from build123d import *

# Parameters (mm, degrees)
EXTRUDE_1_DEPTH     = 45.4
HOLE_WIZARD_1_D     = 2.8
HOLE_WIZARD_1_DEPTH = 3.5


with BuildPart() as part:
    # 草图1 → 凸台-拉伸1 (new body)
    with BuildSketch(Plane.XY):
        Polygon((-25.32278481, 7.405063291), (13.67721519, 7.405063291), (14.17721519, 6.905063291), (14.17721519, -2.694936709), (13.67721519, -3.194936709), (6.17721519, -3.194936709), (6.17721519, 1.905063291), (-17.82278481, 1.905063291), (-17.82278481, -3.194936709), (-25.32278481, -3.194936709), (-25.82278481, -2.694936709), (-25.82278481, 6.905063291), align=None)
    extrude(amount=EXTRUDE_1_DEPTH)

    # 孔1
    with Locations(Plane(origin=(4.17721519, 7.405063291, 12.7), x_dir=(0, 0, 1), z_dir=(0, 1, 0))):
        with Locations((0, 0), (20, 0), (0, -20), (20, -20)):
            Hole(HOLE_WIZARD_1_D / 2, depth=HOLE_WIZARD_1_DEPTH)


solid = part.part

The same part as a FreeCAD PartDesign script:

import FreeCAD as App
import Part
import Sketcher

V = App.Vector
Q = App.Units.Quantity


def add_polygon(sketch, points):
    """Adds a closed chain of lines whose ends are joined by coincident constraints."""
    first, n = sketch.GeometryCount, len(points)
    for a, b in zip(points, points[1:] + points[:1]):
        sketch.addGeometry(Part.LineSegment(App.Vector(*a, 0), App.Vector(*b, 0)), False)
    for i in range(n):
        sketch.addConstraint(Sketcher.Constraint("Coincident", first + i, 2, first + (i + 1) % n, 1))

doc = App.newDocument("Part")
body = doc.addObject("PartDesign::Body", "Body")

sketch1 = doc.addObject("Sketcher::SketchObject", "Sketch")
body.addObject(sketch1)
sketch1.AttachmentSupport = (doc.XY_Plane, [""])
sketch1.MapMode = "FlatFace"
add_polygon(sketch1, [(13.677215, 7.405063), (-25.322785, 7.405063), (-25.822785, 6.905063), (-25.822785, -2.694937), (-25.322785, -3.194937), (-17.822785, -3.194937), (-17.822785, 1.905063), (6.177215, 1.905063), (6.177215, -3.194937), (13.677215, -3.194937), (14.177215, -2.694937), (14.177215, 6.905063)])
sketch1.addConstraint([
    Sketcher.Constraint("Horizontal", 0),
    Sketcher.Constraint("Vertical", 2),
    Sketcher.Constraint("Horizontal", 4),
    Sketcher.Constraint("Vertical", 5),
    Sketcher.Constraint("Horizontal", 6),
    Sketcher.Constraint("Vertical", 7),
    Sketcher.Constraint("Horizontal", 8),
    Sketcher.Constraint("Vertical", 10),
    Sketcher.Constraint("Perpendicular", 1, 3),
    Sketcher.Constraint("Perpendicular", 3, 9),
    Sketcher.Constraint("Perpendicular", 9, 11),
    Sketcher.Constraint("Horizontal", 4, 2, 7, 2),
    Sketcher.Constraint("Horizontal", 2, 2, 9, 2),
    Sketcher.Constraint("Horizontal", 1, 2, 10, 2),
    Sketcher.Constraint("Vertical", 0, 2, 3, 2),
    Sketcher.Constraint("Vertical", 8, 2, 11, 2),
    Sketcher.Constraint("Equal", 4, 8),
    Sketcher.Constraint("DistanceX", 0, 2, 0, 1, Q("39 mm")),
    Sketcher.Constraint("DistanceX", 6, 1, 6, 2, Q("24 mm")),
    Sketcher.Constraint("DistanceY", 2, 2, 2, 1, Q("9.6 mm")),
    Sketcher.Constraint("DistanceY", 5, 1, 5, 2, Q("5.1 mm")),
    Sketcher.Constraint("DistanceX", 2, 2, 4, 2, Q("8 mm")),
    Sketcher.Constraint("DistanceX", 0, 2, -1, 1, Q("25.322785 mm")),
    Sketcher.Constraint("DistanceY", -1, 1, 0, 2, Q("7.405063 mm")),
])
pad1 = doc.addObject("PartDesign::Pad", "Pad")
body.addObject(pad1)
pad1.Profile = sketch1
pad1.Length = 45.4

sketch2 = doc.addObject("Sketcher::SketchObject", "Sketch001")
body.addObject(sketch2)
sketch2.AttachmentSupport = (doc.XZ_Plane, [""])
sketch2.MapMode = "FlatFace"
sketch2.AttachmentOffset = App.Placement(V(0, 0, -7.405063), App.Rotation())
sketch2.addGeometry([
    Part.Circle(V(4.177215, 12.7, 0), V(0, 0, 1), 1.4),
    Part.Circle(V(4.177215, 32.7, 0), V(0, 0, 1), 1.4),
    Part.Circle(V(-15.822785, 12.7, 0), V(0, 0, 1), 1.4),
    Part.Circle(V(-15.822785, 32.7, 0), V(0, 0, 1), 1.4),
], False)
sketch2.addConstraint([
    Sketcher.Constraint("Equal", 0, 1),
    Sketcher.Constraint("Equal", 1, 2),
    Sketcher.Constraint("Equal", 2, 3),
    Sketcher.Constraint("Horizontal", 0, 3, 2, 3),
    Sketcher.Constraint("Horizontal", 1, 3, 3, 3),
    Sketcher.Constraint("Vertical", 0, 3, 1, 3),
    Sketcher.Constraint("Vertical", 2, 3, 3, 3),
    Sketcher.Constraint("Diameter", 0, Q("2.8 mm")),
    Sketcher.Constraint("DistanceY", 0, 3, 1, 3, Q("20 mm")),
    Sketcher.Constraint("DistanceX", 2, 3, 0, 3, Q("20 mm")),
    Sketcher.Constraint("DistanceY", -1, 1, 0, 3, Q("12.7 mm")),
    Sketcher.Constraint("DistanceX", -1, 1, 0, 3, Q("4.177215 mm")),
])
doc.recompute()
hole = doc.addObject("PartDesign::Hole", "Hole")
body.addObject(hole)
hole.Profile = sketch2
hole.ThreadType = "None"
hole.Diameter = 2.8
hole.DepthType = "Dimension"
hole.Depth = 3.5
hole.DrillPoint = "Flat"
hole.Reversed = True

doc.recompute()
